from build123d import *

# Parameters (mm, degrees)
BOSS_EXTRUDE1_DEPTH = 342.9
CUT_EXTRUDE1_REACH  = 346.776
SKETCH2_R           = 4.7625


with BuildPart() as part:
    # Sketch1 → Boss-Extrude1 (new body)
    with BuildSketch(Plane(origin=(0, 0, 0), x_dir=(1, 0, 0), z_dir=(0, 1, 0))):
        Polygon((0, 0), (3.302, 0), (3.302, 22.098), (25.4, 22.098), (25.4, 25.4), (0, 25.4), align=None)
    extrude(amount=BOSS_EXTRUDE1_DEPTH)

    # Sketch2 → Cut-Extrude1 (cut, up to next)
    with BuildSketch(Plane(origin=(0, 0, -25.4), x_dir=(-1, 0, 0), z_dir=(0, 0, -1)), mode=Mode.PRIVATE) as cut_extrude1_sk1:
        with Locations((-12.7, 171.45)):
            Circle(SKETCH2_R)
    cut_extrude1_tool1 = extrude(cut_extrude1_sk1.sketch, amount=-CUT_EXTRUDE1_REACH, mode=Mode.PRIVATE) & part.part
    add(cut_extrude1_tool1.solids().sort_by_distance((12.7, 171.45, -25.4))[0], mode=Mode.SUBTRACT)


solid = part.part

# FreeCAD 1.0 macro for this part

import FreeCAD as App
import Part
import Sketcher
Q = App.Units.Quantity

doc = App.newDocument("Part")
body = doc.addObject("PartDesign::Body", "Body")

# Sketch on XZ plane
sketch1 = doc.addObject("Sketcher::SketchObject", "Sketch")
body.addObject(sketch1)
sketch1.AttachmentSupport = (doc.XZ_Plane, [""])
sketch1.MapMode = "FlatFace"
sketch1.addGeometry([
    Part.LineSegment(App.Vector(0, 0, 0), App.Vector(3.3, 0, 0)),  # 0
    Part.LineSegment(App.Vector(3.3, 0, 0), App.Vector(3.3, -22.1, 0)),  # 1
    Part.LineSegment(App.Vector(3.3, -22.1, 0), App.Vector(25.4, -22.1, 0)),  # 2
    Part.LineSegment(App.Vector(25.4, -22.1, 0), App.Vector(25.4, -25.4, 0)),  # 3
    Part.LineSegment(App.Vector(25.4, -25.4, 0), App.Vector(0, -25.4, 0)),  # 4
    Part.LineSegment(App.Vector(0, -25.4, 0), App.Vector(0, 0, 0)),  # 5
], False)
sketch1.addConstraint([
    Sketcher.Constraint("Coincident", 0, 2, 1, 1),
    Sketcher.Constraint("Coincident", 1, 2, 2, 1),
    Sketcher.Constraint("Coincident", 2, 2, 3, 1),
    Sketcher.Constraint("Coincident", 3, 2, 4, 1),
    Sketcher.Constraint("Coincident", 4, 2, 5, 1),
    Sketcher.Constraint("Coincident", 5, 2, 0, 1),
    Sketcher.Constraint("Horizontal", 0),
    Sketcher.Constraint("Vertical", 1),
    Sketcher.Constraint("Horizontal", 2),
    Sketcher.Constraint("Vertical", 3),
    Sketcher.Constraint("Horizontal", 4),
    Sketcher.Constraint("Vertical", 5),
    Sketcher.Constraint("Coincident", 5, 2, -1, 1),
    Sketcher.Constraint("Equal", 2, 1),
    Sketcher.Constraint("Equal", 0, 3),
    Sketcher.Constraint("DistanceX", 4, 2, 4, 1, Q("1 in")),
    Sketcher.Constraint("DistanceX", 0, 1, 0, 2, Q("0.13 in")),
])
pad1 = doc.addObject("PartDesign::Pad", "Pad")
body.addObject(pad1)
pad1.Profile = sketch1
pad1.Length = Q("13.5 in")
pad1.Reversed = True

# Sketch on XY plane
sketch2 = doc.addObject("Sketcher::SketchObject", "Sketch001")
body.addObject(sketch2)
sketch2.AttachmentSupport = (doc.XY_Plane, [""])
sketch2.MapMode = "FlatFace"
sketch2.AttachmentOffset = App.Placement(App.Vector(0, 0, -1 * 25.4), App.Rotation())
sketch2.addGeometry(Part.Circle(App.Vector(12.7, 171.4, 0), App.Vector(0, 0, 1), 4.8), False)
sketch2.addConstraint([
    Sketcher.Constraint("Diameter", 0, Q("0.375 in")),
    Sketcher.Constraint("DistanceX", -1, 1, 0, 3, Q("0.5 in")),
    Sketcher.Constraint("DistanceY", -1, 1, 0, 3, Q("6.75 in")),
])
pocket1 = doc.addObject("PartDesign::Pocket", "Pocket")
body.addObject(pocket1)
pocket1.Profile = sketch2
pocket1.Type = "UpToFirst"
pocket1.Reversed = True

doc.recompute()
